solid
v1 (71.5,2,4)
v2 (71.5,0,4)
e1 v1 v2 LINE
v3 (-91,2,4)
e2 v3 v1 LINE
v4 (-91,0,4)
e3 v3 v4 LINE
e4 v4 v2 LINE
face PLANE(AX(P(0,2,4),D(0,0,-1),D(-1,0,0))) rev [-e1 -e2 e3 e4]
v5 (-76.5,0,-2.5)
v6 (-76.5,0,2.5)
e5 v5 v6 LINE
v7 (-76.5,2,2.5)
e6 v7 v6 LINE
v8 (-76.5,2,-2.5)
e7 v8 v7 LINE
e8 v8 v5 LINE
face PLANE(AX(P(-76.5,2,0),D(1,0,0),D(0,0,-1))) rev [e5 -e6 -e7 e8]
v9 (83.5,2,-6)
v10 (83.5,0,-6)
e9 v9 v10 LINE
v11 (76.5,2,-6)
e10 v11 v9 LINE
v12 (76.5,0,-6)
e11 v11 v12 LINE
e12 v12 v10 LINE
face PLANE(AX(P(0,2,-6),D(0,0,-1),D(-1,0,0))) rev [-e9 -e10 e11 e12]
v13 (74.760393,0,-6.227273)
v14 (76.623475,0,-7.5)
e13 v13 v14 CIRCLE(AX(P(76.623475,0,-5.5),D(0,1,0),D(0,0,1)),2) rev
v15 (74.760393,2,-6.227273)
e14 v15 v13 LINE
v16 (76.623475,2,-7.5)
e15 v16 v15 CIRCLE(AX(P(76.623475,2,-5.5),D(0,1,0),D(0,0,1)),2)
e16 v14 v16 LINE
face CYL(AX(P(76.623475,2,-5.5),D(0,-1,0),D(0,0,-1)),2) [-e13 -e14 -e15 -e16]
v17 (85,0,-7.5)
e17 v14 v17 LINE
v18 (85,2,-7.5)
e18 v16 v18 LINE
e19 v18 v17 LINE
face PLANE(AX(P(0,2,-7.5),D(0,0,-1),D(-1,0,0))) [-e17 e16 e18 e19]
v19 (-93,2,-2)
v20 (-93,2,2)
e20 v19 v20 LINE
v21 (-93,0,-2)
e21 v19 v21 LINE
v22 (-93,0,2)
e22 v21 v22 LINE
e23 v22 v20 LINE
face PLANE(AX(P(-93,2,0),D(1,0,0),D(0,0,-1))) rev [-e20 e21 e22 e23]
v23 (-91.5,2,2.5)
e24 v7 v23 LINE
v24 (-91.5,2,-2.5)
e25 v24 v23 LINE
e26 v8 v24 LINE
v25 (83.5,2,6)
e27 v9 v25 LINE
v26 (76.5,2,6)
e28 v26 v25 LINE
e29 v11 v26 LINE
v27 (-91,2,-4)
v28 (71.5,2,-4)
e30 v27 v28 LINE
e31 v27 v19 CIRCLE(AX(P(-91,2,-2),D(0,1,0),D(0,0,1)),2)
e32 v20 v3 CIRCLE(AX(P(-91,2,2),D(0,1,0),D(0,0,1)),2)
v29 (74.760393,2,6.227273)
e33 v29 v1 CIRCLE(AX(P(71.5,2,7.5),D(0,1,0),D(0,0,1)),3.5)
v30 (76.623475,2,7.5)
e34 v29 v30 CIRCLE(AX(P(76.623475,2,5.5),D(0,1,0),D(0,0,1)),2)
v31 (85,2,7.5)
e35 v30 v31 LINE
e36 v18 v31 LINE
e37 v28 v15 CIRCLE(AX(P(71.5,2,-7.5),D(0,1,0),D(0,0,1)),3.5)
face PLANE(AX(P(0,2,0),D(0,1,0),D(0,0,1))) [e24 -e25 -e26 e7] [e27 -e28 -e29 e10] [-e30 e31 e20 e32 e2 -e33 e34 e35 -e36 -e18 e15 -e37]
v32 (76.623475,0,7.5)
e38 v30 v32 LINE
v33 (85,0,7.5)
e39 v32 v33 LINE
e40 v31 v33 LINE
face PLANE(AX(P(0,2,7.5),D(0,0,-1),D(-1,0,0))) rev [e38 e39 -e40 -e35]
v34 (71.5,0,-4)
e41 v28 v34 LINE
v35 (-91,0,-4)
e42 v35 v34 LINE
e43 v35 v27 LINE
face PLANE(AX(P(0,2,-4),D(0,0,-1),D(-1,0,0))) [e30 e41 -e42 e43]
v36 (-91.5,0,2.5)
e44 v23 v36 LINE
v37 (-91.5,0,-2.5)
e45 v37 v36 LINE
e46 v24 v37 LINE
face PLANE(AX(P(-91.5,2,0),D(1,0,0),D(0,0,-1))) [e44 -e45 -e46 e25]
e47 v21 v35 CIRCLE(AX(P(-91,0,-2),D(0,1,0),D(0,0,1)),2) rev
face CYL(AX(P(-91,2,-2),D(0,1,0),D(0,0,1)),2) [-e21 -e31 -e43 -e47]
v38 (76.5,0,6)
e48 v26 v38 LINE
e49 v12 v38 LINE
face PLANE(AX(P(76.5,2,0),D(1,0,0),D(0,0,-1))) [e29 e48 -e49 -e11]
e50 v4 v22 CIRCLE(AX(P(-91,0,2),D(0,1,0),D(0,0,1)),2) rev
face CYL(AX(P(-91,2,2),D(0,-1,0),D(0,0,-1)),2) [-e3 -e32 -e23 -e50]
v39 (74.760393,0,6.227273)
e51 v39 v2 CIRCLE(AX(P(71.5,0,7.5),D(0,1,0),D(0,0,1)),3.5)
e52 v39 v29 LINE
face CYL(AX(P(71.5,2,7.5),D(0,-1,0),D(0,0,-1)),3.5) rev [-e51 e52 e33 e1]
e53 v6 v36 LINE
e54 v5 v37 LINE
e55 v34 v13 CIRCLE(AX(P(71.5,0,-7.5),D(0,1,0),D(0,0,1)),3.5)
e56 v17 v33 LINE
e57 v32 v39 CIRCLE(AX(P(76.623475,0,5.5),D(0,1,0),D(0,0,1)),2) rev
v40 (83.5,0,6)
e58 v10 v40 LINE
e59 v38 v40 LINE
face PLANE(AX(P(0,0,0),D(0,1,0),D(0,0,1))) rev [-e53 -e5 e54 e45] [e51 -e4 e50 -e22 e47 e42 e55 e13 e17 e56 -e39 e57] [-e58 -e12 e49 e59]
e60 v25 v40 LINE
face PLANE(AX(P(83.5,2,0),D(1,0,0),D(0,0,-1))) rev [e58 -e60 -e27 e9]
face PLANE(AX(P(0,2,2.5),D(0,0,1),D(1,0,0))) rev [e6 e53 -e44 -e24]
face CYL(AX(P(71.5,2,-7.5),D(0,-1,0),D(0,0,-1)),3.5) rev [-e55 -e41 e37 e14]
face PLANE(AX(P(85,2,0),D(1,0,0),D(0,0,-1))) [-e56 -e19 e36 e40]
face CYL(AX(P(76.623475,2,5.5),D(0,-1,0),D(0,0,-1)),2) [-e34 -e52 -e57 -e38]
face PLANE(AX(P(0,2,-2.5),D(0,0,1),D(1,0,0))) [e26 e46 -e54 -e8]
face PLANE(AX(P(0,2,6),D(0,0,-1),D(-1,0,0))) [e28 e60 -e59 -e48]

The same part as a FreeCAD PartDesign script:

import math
import FreeCAD as App
import Part
import Sketcher
from FreeCAD import Vector


def edges_at(feature, points):
    """Names of the edges that pass closest to the given points."""
    edges = feature.Shape.Edges
    near = lambda p: min(range(len(edges)), key=lambda i: edges[i].distToShape(Part.Vertex(*p))[0])
    return sorted({f"Edge{near(p) + 1}" for p in points})

doc = App.newDocument("Part")
body = doc.addObject("PartDesign::Body", "Body")

# Sketch on XZ plane
sketch1 = doc.addObject("Sketcher::SketchObject", "Sketch")
body.addObject(sketch1)
sketch1.AttachmentSupport = (doc.XZ_Plane, [""])
sketch1.MapMode = "FlatFace"
sketch1.addGeometry(Part.LineSegment(Vector(-93, -4, 0), Vector(-93, 4, 0)), False)
sketch1.addGeometry(Part.LineSegment(Vector(-93, 4, 0), Vector(71.5, 4, 0)), False)
sketch1.addGeometry(Part.ArcOfCircle(Part.Circle(Vector(71.5, 7.5, 0), Vector(0, 0, 1), 3.5), math.radians(-89.999999), math.radians(0)), False)
sketch1.addGeometry(Part.LineSegment(Vector(75, 7.5, 0), Vector(85, 7.5, 0)), False)
sketch1.addGeometry(Part.LineSegment(Vector(85, 7.5, 0), Vector(85, -7.5, 0)), False)
sketch1.addGeometry(Part.LineSegment(Vector(85, -7.5, 0), Vector(75, -7.5, 0)), False)
sketch1.addGeometry(Part.ArcOfCircle(Part.Circle(Vector(71.5, -7.5, 0), Vector(0, 0, 1), 3.5), math.radians(0), math.radians(90.000002)), False)
sketch1.addGeometry(Part.LineSegment(Vector(71.5, -4, 0), Vector(-93, -4, 0)), False)
sketch1.addGeometry(Part.LineSegment(Vector(-76.5, 2.5, 0), Vector(-91.5, 2.5, 0)), False)
sketch1.addGeometry(Part.LineSegment(Vector(-91.5, 2.5, 0), Vector(-91.5, -2.5, 0)), False)
sketch1.addGeometry(Part.LineSegment(Vector(-91.5, -2.5, 0), Vector(-76.5, -2.5, 0)), False)
sketch1.addGeometry(Part.LineSegment(Vector(-76.5, -2.5, 0), Vector(-76.5, 2.5, 0)), False)
sketch1.addGeometry(Part.LineSegment(Vector(83.5, 6, 0), Vector(76.5, 6, 0)), False)
sketch1.addGeometry(Part.LineSegment(Vector(76.5, 6, 0), Vector(76.5, -6, 0)), False)
sketch1.addGeometry(Part.LineSegment(Vector(76.5, -6, 0), Vector(83.5, -6, 0)), False)
sketch1.addGeometry(Part.LineSegment(Vector(83.5, -6, 0), Vector(83.5, 6, 0)), False)
sketch1.addConstraint(Sketcher.Constraint("Coincident", 0, 2, 1, 1))
sketch1.addConstraint(Sketcher.Constraint("Tangent", 1, 2, 2, 1))
sketch1.addConstraint(Sketcher.Constraint("Coincident", 2, 2, 3, 1))
sketch1.addConstraint(Sketcher.Constraint("Coincident", 3, 2, 4, 1))
sketch1.addConstraint(Sketcher.Constraint("Coincident", 4, 2, 5, 1))
sketch1.addConstraint(Sketcher.Constraint("Coincident", 5, 2, 6, 1))
sketch1.addConstraint(Sketcher.Constraint("Tangent", 6, 2, 7, 1))
sketch1.addConstraint(Sketcher.Constraint("Coincident", 7, 2, 0, 1))
sketch1.addConstraint(Sketcher.Constraint("Coincident", 8, 2, 9, 1))
sketch1.addConstraint(Sketcher.Constraint("Coincident", 9, 2, 10, 1))
sketch1.addConstraint(Sketcher.Constraint("Coincident", 10, 2, 11, 1))
sketch1.addConstraint(Sketcher.Constraint("Coincident", 11, 2, 8, 1))
sketch1.addConstraint(Sketcher.Constraint("Coincident", 12, 2, 13, 1))
sketch1.addConstraint(Sketcher.Constraint("Coincident", 13, 2, 14, 1))
sketch1.addConstraint(Sketcher.Constraint("Coincident", 14, 2, 15, 1))
sketch1.addConstraint(Sketcher.Constraint("Coincident", 15, 2, 12, 1))
sketch1.addConstraint(Sketcher.Constraint("Vertical", 0))
sketch1.addConstraint(Sketcher.Constraint("Horizontal", 1))
sketch1.addConstraint(Sketcher.Constraint("Horizontal", 3))
sketch1.addConstraint(Sketcher.Constraint("Vertical", 4))
sketch1.addConstraint(Sketcher.Constraint("Horizontal", 5))
sketch1.addConstraint(Sketcher.Constraint("Horizontal", 7))
sketch1.addConstraint(Sketcher.Constraint("Horizontal", 8))
sketch1.addConstraint(Sketcher.Constraint("Vertical", 9))
sketch1.addConstraint(Sketcher.Constraint("Horizontal", 10))
sketch1.addConstraint(Sketcher.Constraint("Vertical", 11))
sketch1.addConstraint(Sketcher.Constraint("Horizontal", 12))
sketch1.addConstraint(Sketcher.Constraint("Vertical", 13))
sketch1.addConstraint(Sketcher.Constraint("Horizontal", 14))
sketch1.addConstraint(Sketcher.Constraint("Vertical", 15))
sketch1.addConstraint(Sketcher.Constraint("Equal", 2, 6))
sketch1.addConstraint(Sketcher.Constraint("Symmetric", 2, 3, 6, 3, -1))
sketch1.addConstraint(Sketcher.Constraint("Horizontal", 6, 3, 4, 2))
sketch1.addConstraint(Sketcher.Constraint("Equal", 10, 4))
sketch1.addConstraint(Sketcher.Constraint("Radius", 2, 3.5))
sketch1.addConstraint(Sketcher.Constraint("DistanceX", 3, 1, 3, 2, 10.0))
sketch1.addConstraint(Sketcher.Constraint("DistanceX", 8, 2, 8, 1, 15.0))
sketch1.addConstraint(Sketcher.Constraint("DistanceX", 12, 2, 12, 1, 7.0))
sketch1.addConstraint(Sketcher.Constraint("DistanceY", 0, 1, 0, 2, 8.0))
sketch1.addConstraint(Sketcher.Constraint("DistanceY", 9, 2, 9, 1, 5.0))
sketch1.addConstraint(Sketcher.Constraint("DistanceY", 13, 2, 13, 1, 12.0))
sketch1.addConstraint(Sketcher.Constraint("DistanceX", 1, 1, 1, 2, 164.5))
sketch1.addConstraint(Sketcher.Constraint("DistanceX", 0, 2, -1, 1, 93.0))
sketch1.addConstraint(Sketcher.Constraint("DistanceY", -1, 1, 12, 2, 6.0))
sketch1.addConstraint(Sketcher.Constraint("DistanceX", 8, 2, 1, 2, 163.0))
sketch1.addConstraint(Sketcher.Constraint("DistanceY", 8, 2, 2, 3, 5.0))
sketch1.addConstraint(Sketcher.Constraint("DistanceX", 2, 3, 12, 2, 5.0))
pad1 = doc.addObject("PartDesign::Pad", "Pad")
body.addObject(pad1)
pad1.Profile = sketch1
pad1.Length = 2
pad1.Reversed = True
doc.recompute()

fillet = doc.addObject("PartDesign::Fillet", "Fillet")
body.addObject(fillet)
fillet.Base = (pad1, edges_at(pad1, [
    (-93, 1, 4),
    (-93, 1, -4),
    (75, 1, -7.5),
    (75, 1, 7.5),
]))
fillet.Radius = 2

doc.recompute()
